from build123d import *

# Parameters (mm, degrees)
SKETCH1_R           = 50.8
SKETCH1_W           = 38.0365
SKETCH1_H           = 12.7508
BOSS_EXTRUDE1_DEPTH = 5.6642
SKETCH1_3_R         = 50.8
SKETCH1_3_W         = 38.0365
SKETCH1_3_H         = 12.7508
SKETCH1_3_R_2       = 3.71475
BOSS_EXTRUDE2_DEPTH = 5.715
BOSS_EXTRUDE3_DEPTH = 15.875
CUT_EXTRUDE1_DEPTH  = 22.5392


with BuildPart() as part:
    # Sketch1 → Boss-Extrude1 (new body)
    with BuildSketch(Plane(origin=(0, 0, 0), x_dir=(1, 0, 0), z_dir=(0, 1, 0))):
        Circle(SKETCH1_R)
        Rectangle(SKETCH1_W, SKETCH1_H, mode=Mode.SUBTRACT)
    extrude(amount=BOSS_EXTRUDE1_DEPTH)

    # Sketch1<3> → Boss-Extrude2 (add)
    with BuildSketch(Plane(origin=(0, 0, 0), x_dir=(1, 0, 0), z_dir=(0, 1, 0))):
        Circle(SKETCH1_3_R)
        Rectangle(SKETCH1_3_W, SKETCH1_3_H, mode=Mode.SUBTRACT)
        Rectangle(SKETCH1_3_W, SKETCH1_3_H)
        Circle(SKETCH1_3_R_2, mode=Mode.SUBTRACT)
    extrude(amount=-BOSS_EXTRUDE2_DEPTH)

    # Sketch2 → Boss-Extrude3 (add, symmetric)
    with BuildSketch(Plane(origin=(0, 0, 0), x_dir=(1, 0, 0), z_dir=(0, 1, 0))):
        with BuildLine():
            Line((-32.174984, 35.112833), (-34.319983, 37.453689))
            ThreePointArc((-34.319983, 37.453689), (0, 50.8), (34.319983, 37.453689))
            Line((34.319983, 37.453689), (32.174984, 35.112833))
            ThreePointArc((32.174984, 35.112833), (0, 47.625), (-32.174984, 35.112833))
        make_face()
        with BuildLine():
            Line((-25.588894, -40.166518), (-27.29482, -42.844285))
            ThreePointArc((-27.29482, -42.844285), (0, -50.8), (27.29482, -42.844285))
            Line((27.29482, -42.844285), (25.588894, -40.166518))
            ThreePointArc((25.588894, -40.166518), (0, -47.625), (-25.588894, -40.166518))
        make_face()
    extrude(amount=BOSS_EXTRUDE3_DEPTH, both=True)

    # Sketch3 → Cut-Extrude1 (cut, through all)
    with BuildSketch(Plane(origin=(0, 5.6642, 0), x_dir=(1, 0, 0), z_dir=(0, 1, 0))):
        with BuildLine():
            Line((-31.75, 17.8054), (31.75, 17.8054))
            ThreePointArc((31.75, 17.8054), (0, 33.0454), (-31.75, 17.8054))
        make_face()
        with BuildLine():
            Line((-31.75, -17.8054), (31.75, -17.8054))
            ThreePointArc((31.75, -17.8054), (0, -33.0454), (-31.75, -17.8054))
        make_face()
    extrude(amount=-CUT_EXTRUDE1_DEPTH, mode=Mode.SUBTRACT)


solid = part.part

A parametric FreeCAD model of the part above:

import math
import FreeCAD as App
import Part
import Sketcher

V = App.Vector
Q = App.Units.Quantity

doc = App.newDocument("Part")
body = doc.addObject("PartDesign::Body", "Body")

# Sketch on XZ plane
sketch1 = doc.addObject("Sketcher::SketchObject", "Sketch")
body.addObject(sketch1)
sketch1.AttachmentSupport = (doc.XZ_Plane, [""])
sketch1.MapMode = "FlatFace"
sketch1.addGeometry([
    Part.Circle(V(0, 0, 0), V(0, 0, 1), 50.8),  # 0
    Part.LineSegment(V(19.01825, 6.3754, 0), V(-19.01825, 6.3754, 0)),  # 1
    Part.LineSegment(V(-19.01825, 6.3754, 0), V(-19.01825, -6.3754, 0)),  # 2
    Part.LineSegment(V(-19.01825, -6.3754, 0), V(19.01825, -6.3754, 0)),  # 3
    Part.LineSegment(V(19.01825, -6.3754, 0), V(19.01825, 6.3754, 0)),  # 4
], False)
sketch1.addConstraint([
    Sketcher.Constraint("Coincident", 1, 2, 2, 1),
    Sketcher.Constraint("Coincident", 2, 2, 3, 1),
    Sketcher.Constraint("Coincident", 3, 2, 4, 1),
    Sketcher.Constraint("Coincident", 4, 2, 1, 1),
    Sketcher.Constraint("Horizontal", 1),
    Sketcher.Constraint("Vertical", 2),
    Sketcher.Constraint("Horizontal", 3),
    Sketcher.Constraint("Vertical", 4),
    Sketcher.Constraint("Coincident", 0, 3, -1, 1),
    Sketcher.Constraint("Symmetric", 1, 2, 3, 2, -1, 1),
    Sketcher.Constraint("Diameter", 0, Q("4 in")),
    Sketcher.Constraint("DistanceY", 2, 2, 2, 1, Q("0.502 in")),
    Sketcher.Constraint("DistanceX", 1, 2, 1, 1, Q("1.4975 in")),
])
pad1 = doc.addObject("PartDesign::Pad", "Pad")
body.addObject(pad1)
pad1.Profile = sketch1
pad1.Length = Q("0.223 in")
pad1.Reversed = True

# Sketch on XZ plane
sketch2 = doc.addObject("Sketcher::SketchObject", "Sketch001")
body.addObject(sketch2)
sketch2.AttachmentSupport = (doc.XZ_Plane, [""])
sketch2.MapMode = "FlatFace"
sketch2.addGeometry([
    Part.Circle(V(0, 0, 0), V(0, 0, 1), 50.8),
    Part.Circle(V(0, 0, 0), V(0, 0, 1), 3.71475),
], False)
sketch2.addConstraint([
    Sketcher.Constraint("Coincident", 0, 3, -1, 1),
    Sketcher.Constraint("Coincident", 1, 3, -1, 1),
    Sketcher.Constraint("Diameter", 0, Q("4 in")),
    Sketcher.Constraint("Diameter", 1, Q("0.2925 in")),
])
pad2 = doc.addObject("PartDesign::Pad", "Pad001")
body.addObject(pad2)
pad2.Profile = sketch2
pad2.Length = Q("0.225 in")

# Sketch on XZ plane
sketch3 = doc.addObject("Sketcher::SketchObject", "Sketch002")
body.addObject(sketch3)
sketch3.AttachmentSupport = (doc.XZ_Plane, [""])
sketch3.MapMode = "FlatFace"
sketch3.addGeometry([
    Part.LineSegment(V(-34.319983, -37.453689, 0), V(-32.174984, -35.112833, 0)),  # 0
    Part.ArcOfCircle(Part.Circle(V(0, 0, 0), V(0, 0, 1), 47.625), math.radians(-132.5), math.radians(-47.5)),  # 1
    Part.LineSegment(V(32.174984, -35.112833, 0), V(34.319983, -37.453689, 0)),  # 2
    Part.ArcOfCircle(Part.Circle(V(0, 0.000002, 0), V(0, 0, 1), 50.800002), math.radians(-132.499999), math.radians(-47.500001)),  # 3
    Part.LineSegment(V(-25.588894, 40.166518, 0), V(-27.29482, 42.844285, 0)),  # 4
    Part.ArcOfCircle(Part.Circle(V(0, 0.000003, 0), V(0, 0, 1), 50.799997), math.radians(57.499998), math.radians(122.500002)),  # 5
    Part.LineSegment(V(27.29482, 42.844285, 0), V(25.588894, 40.166518, 0)),  # 6
    Part.ArcOfCircle(Part.Circle(V(0, -0.000003, 0), V(0, 0, 1), 47.625003), math.radians(57.500002), math.radians(122.499998)),  # 7
], False)
sketch3.addConstraint([
    Sketcher.Constraint("Coincident", 0, 2, 1, 1),
    Sketcher.Constraint("Coincident", 1, 2, 2, 1),
    Sketcher.Constraint("Coincident", 2, 2, 3, 2),
    Sketcher.Constraint("Coincident", 3, 1, 0, 1),
    Sketcher.Constraint("Coincident", 4, 2, 5, 2),
    Sketcher.Constraint("Coincident", 5, 1, 6, 1),
    Sketcher.Constraint("Coincident", 6, 2, 7, 1),
    Sketcher.Constraint("Coincident", 7, 2, 4, 1),
    Sketcher.Constraint("Coincident", 1, 3, -1, 1),
    Sketcher.Constraint("Coincident", 3, 3, -1, 1),
    Sketcher.Constraint("Coincident", 5, 3, -1, 1),
    Sketcher.Constraint("Coincident", 7, 3, -1, 1),
    Sketcher.Constraint("Horizontal", 0, 2, 1, 2),
    Sketcher.Constraint("Horizontal", 2, 2, 3, 1),
    Sketcher.Constraint("Horizontal", 4, 2, 5, 1),
    Sketcher.Constraint("Horizontal", 6, 2, 7, 2),
    Sketcher.Constraint("Equal", 2, 4),
    Sketcher.Constraint("Radius", 3, Q("2.0000001 in")),
    Sketcher.Constraint("Radius", 5, Q("1.9999999 in")),
    Sketcher.Constraint("Radius", 1, Q("1.875 in")),
    Sketcher.Constraint("Angle", 0, Q("47.500004 deg")),
    Sketcher.Constraint("Angle", 4, Q("122.500004 deg")),
    Sketcher.Constraint("DistanceY", 2, 2, -1, 1, Q("37.453689 mm")),
    Sketcher.Constraint("DistanceX", 4, 2, -1, 1, Q("27.29482 mm")),
])
pad3 = doc.addObject("PartDesign::Pad", "Pad002")
body.addObject(pad3)
pad3.Profile = sketch3
pad3.Length = Q("1.25 in")
pad3.Midplane = True

# Sketch on XZ plane
sketch4 = doc.addObject("Sketcher::SketchObject", "Sketch003")
body.addObject(sketch4)
sketch4.AttachmentSupport = (doc.XZ_Plane, [""])
sketch4.MapMode = "FlatFace"
sketch4.AttachmentOffset = App.Placement(V(0, 0, -0.223 * 25.4), App.Rotation())
sketch4.addGeometry([
    Part.LineSegment(V(-31.75, -17.8054, 0), V(31.75, -17.8054, 0)),
    Part.ArcOfCircle(Part.Circle(V(0, 7.647517, 0), V(0, 0, 1), 40.692917), math.radians(-141.282012), math.radians(-38.717988)),
    Part.LineSegment(V(31.75, 17.8054, 0), V(-31.75, 17.8054, 0)),
    Part.ArcOfCircle(Part.Circle(V(0, -7.647517, 0), V(0, 0, 1), 40.692917), math.radians(38.717988), math.radians(141.282012)),
], False)
sketch4.addConstraint([
    Sketcher.Constraint("Coincident", 0, 1, 1, 1),
    Sketcher.Constraint("Coincident", 1, 2, 0, 2),
    Sketcher.Constraint("Coincident", 2, 1, 3, 1),
    Sketcher.Constraint("Coincident", 3, 2, 2, 2),
    Sketcher.Constraint("Horizontal", 0),
    Sketcher.Constraint("Horizontal", 2),
    Sketcher.Constraint("Equal", 1, 3),
    Sketcher.Constraint("Symmetric", 1, 3, 3, 3, -1, 1),
    Sketcher.Constraint("Symmetric", 1, 2, 2, 1, -1),
    Sketcher.Constraint("DistanceX", 0, 1, 0, 2, Q("2.5 in")),
    Sketcher.Constraint("DistanceY", 0, 1, -1, 1, Q("0.701 in")),
    Sketcher.Constraint("Radius", 1, Q("40.692917 mm")),
])
pocket1 = doc.addObject("PartDesign::Pocket", "Pocket")
body.addObject(pocket1)
pocket1.Profile = sketch4
pocket1.Type = "ThroughAll"
pocket1.Reversed = True

doc.recompute()
